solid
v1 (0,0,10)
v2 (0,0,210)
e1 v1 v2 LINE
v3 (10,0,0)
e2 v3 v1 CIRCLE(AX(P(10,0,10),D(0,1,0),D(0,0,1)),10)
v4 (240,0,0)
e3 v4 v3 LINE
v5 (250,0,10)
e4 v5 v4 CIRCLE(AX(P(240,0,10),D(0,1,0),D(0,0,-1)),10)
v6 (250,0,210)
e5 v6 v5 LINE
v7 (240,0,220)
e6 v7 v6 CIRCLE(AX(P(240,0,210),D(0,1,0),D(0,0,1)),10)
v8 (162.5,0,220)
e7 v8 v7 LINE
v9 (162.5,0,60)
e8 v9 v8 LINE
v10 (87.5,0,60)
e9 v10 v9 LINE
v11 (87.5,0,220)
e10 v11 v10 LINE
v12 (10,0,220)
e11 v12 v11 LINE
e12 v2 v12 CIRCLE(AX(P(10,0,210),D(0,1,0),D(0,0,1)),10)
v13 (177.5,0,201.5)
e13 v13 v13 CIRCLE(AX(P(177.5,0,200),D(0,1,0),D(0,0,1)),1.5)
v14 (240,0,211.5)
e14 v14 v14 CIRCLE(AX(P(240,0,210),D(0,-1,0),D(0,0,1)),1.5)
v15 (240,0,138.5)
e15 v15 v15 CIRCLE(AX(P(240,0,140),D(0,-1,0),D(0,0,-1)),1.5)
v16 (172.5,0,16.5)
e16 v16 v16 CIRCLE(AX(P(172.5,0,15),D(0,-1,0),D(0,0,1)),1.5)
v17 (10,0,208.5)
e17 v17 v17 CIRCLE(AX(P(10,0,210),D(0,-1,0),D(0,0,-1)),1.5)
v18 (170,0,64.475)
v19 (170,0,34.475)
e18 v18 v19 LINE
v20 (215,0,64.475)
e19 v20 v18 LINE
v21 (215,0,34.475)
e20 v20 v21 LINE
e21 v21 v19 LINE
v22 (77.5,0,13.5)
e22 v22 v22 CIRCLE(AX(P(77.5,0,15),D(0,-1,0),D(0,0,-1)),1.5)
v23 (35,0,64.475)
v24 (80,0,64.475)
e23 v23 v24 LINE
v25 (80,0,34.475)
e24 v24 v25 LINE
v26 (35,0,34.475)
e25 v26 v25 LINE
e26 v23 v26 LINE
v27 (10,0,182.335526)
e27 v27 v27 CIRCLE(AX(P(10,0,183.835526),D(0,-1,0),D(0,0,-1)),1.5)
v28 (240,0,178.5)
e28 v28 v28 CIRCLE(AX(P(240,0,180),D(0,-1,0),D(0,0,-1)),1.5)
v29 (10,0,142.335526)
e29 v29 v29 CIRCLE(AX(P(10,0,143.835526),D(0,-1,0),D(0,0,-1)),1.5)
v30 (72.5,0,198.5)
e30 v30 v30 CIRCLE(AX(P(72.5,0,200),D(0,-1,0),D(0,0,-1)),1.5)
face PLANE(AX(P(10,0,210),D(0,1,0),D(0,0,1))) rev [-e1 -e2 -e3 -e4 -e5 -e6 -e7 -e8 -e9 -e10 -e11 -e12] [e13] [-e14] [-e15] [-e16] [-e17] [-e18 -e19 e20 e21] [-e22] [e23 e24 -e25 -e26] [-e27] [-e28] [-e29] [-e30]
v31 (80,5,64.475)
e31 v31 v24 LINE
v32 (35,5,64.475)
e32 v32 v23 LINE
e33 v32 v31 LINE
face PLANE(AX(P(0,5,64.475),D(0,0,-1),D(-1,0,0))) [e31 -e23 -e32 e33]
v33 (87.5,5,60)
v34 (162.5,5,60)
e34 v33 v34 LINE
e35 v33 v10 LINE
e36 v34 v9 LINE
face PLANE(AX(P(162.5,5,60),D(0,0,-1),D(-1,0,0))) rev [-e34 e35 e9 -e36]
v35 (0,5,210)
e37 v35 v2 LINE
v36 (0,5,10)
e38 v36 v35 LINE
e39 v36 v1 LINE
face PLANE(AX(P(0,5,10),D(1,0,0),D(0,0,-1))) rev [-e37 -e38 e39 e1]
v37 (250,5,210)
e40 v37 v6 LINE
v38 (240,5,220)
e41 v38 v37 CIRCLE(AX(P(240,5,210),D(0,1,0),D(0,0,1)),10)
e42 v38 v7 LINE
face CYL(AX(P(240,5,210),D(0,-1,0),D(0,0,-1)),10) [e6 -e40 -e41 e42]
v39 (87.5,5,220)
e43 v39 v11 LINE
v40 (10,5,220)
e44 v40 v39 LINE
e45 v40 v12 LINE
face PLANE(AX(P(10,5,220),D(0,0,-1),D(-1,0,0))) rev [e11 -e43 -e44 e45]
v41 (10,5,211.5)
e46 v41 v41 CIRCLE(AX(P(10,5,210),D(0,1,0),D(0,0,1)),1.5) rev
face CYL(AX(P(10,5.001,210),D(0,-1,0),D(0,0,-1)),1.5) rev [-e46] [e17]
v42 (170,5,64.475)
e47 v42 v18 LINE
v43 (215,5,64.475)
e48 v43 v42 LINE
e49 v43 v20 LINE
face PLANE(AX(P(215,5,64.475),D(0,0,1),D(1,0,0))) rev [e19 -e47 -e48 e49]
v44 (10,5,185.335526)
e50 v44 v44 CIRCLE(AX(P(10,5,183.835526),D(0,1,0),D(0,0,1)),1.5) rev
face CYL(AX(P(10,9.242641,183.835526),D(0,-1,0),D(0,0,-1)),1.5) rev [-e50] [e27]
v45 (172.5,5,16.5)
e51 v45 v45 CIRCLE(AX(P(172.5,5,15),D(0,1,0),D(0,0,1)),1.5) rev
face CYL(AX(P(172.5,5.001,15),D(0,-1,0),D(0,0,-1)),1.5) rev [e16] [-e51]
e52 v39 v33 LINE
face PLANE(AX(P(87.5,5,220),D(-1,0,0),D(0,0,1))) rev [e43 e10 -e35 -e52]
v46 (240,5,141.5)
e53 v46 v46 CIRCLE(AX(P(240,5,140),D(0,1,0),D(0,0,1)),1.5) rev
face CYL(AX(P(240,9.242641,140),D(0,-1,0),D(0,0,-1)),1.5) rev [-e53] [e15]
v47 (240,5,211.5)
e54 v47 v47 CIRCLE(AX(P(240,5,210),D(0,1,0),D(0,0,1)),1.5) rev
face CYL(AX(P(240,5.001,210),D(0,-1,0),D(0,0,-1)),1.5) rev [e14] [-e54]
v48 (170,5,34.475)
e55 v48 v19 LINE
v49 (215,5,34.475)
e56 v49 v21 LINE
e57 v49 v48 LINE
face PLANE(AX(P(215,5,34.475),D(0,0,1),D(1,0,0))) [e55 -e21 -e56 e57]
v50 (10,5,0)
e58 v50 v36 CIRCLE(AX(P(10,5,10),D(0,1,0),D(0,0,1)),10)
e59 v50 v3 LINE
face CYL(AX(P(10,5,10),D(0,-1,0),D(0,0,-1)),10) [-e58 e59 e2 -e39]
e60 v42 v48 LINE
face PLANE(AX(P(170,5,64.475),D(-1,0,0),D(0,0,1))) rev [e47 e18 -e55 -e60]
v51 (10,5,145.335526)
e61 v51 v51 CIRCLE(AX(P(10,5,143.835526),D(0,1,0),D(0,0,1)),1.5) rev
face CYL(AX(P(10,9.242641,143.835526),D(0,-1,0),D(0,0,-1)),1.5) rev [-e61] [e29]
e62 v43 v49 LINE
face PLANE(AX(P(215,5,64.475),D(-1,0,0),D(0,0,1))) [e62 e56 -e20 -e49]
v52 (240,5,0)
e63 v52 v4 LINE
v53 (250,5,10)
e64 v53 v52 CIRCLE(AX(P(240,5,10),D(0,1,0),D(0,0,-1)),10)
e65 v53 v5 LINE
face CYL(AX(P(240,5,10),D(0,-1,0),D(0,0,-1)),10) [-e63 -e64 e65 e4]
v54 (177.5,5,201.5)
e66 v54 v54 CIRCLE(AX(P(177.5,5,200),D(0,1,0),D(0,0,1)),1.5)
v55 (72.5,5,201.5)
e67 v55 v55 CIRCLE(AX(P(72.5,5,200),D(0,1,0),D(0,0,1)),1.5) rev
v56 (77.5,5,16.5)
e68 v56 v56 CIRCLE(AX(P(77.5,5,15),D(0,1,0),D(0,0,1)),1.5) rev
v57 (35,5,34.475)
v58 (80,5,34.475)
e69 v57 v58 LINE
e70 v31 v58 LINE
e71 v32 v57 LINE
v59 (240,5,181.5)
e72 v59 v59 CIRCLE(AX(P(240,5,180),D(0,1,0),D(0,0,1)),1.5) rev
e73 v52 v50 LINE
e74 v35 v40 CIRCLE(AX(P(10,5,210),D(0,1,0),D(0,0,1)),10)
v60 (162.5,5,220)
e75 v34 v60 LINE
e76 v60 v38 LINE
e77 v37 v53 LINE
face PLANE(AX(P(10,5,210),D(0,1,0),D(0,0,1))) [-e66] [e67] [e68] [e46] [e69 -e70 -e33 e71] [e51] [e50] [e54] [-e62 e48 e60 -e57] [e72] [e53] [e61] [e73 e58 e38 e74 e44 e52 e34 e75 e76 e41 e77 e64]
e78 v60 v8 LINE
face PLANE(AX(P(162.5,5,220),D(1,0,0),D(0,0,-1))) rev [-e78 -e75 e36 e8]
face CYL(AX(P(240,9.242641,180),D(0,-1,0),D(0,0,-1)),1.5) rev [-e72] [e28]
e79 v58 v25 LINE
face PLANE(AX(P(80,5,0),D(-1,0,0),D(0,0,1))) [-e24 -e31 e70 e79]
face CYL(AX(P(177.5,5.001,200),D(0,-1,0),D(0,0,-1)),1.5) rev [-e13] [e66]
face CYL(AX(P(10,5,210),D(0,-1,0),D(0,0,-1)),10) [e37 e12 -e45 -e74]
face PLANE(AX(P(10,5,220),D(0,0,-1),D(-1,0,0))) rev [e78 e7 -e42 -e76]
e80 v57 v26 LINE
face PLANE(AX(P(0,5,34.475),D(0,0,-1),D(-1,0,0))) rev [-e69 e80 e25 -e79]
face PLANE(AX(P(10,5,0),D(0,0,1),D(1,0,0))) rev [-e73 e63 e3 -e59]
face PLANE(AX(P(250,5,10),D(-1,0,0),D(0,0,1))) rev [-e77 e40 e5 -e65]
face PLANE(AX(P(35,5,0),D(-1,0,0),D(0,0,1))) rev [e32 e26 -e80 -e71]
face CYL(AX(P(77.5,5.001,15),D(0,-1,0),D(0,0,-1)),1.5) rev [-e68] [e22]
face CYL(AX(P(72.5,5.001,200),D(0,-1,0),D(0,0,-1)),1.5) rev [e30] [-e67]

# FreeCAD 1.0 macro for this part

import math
import FreeCAD as App
import Part
import Sketcher
from FreeCAD import Vector
Q = App.Units.Quantity

doc = App.newDocument("Part")
body = doc.addObject("PartDesign::Body", "Body")

# Sketch on XZ plane
sketch1 = body.newObject("Sketcher::SketchObject", "Sketch")
sketch1.AttachmentSupport = (doc.getObject("XZ_Plane"), [""])
sketch1.MapMode = "FlatFace"
sketch1.addGeometry(Part.LineSegment(Vector(240, 0, 0), Vector(10, 0, 0)), False)
sketch1.addGeometry(Part.ArcOfCircle(Part.Circle(Vector(10, 10, 0), Vector(0, 0, 1), 10), math.radians(180), math.radians(270)), False)
sketch1.addGeometry(Part.LineSegment(Vector(0, 10, 0), Vector(0, 210, 0)), False)
sketch1.addGeometry(Part.ArcOfCircle(Part.Circle(Vector(10, 210, 0), Vector(0, 0, 1), 10), math.radians(90), math.radians(180)), False)
sketch1.addGeometry(Part.LineSegment(Vector(10, 220, 0), Vector(240, 220, 0)), False)
sketch1.addGeometry(Part.ArcOfCircle(Part.Circle(Vector(240, 210, 0), Vector(0, 0, 1), 10), math.radians(0), math.radians(90)), False)
sketch1.addGeometry(Part.LineSegment(Vector(250, 210, 0), Vector(250, 10, 0)), False)
sketch1.addGeometry(Part.ArcOfCircle(Part.Circle(Vector(240, 10, 0), Vector(0, 0, 1), 10), math.radians(-90), math.radians(0)), False)
sketch1.addConstraint(Sketcher.Constraint("Tangent", 0, 2, 1, 2))
sketch1.addConstraint(Sketcher.Constraint("Tangent", 1, 1, 2, 1))
sketch1.addConstraint(Sketcher.Constraint("Tangent", 2, 2, 3, 2))
sketch1.addConstraint(Sketcher.Constraint("Tangent", 3, 1, 4, 1))
sketch1.addConstraint(Sketcher.Constraint("Tangent", 4, 2, 5, 2))
sketch1.addConstraint(Sketcher.Constraint("Tangent", 5, 1, 6, 1))
sketch1.addConstraint(Sketcher.Constraint("Tangent", 6, 2, 7, 2))
sketch1.addConstraint(Sketcher.Constraint("Tangent", 7, 1, 0, 1))
sketch1.addConstraint(Sketcher.Constraint("Horizontal", 0))
sketch1.addConstraint(Sketcher.Constraint("Vertical", 2))
sketch1.addConstraint(Sketcher.Constraint("Horizontal", 4))
sketch1.addConstraint(Sketcher.Constraint("Vertical", 6))
sketch1.addConstraint(Sketcher.Constraint("Equal", 1, 3))
sketch1.addConstraint(Sketcher.Constraint("Equal", 3, 5))
sketch1.addConstraint(Sketcher.Constraint("Equal", 5, 7))
sketch1.addConstraint(Sketcher.Constraint("PointOnObject", 0, 2, -1))
sketch1.addConstraint(Sketcher.Constraint("PointOnObject", 1, 1, -2))
sketch1.addConstraint(Sketcher.Constraint("Radius", 1, Q("10 mm")))
sketch1.addConstraint(Sketcher.Constraint("DistanceX", 0, 2, 0, 1, Q("230 mm")))
sketch1.addConstraint(Sketcher.Constraint("DistanceY", 2, 1, 2, 2, Q("200 mm")))
pad1 = body.newObject("PartDesign::Pad", "Pad")
pad1.Profile = sketch1
pad1.Length = 5
pad1.Reversed = True

# Sketch on XZ plane
sketch2 = body.newObject("Sketcher::SketchObject", "Sketch001")
sketch2.AttachmentSupport = (doc.getObject("XZ_Plane"), [""])
sketch2.MapMode = "FlatFace"
sketch2.addGeometry(Part.LineSegment(Vector(170, 64, 0), Vector(170, 34, 0)), False)
sketch2.addGeometry(Part.LineSegment(Vector(170, 34, 0), Vector(215, 34, 0)), False)
sketch2.addGeometry(Part.LineSegment(Vector(215, 34, 0), Vector(215, 64, 0)), False)
sketch2.addGeometry(Part.LineSegment(Vector(215, 64, 0), Vector(170, 64, 0)), False)
sketch2.addGeometry(Part.LineSegment(Vector(35, 64, 0), Vector(35, 34, 0)), False)
sketch2.addGeometry(Part.LineSegment(Vector(35, 34, 0), Vector(80, 34, 0)), False)
sketch2.addGeometry(Part.LineSegment(Vector(80, 34, 0), Vector(80, 64, 0)), False)
sketch2.addGeometry(Part.LineSegment(Vector(80, 64, 0), Vector(35, 64, 0)), False)
sketch2.addConstraint(Sketcher.Constraint("Coincident", 0, 2, 1, 1))
sketch2.addConstraint(Sketcher.Constraint("Coincident", 1, 2, 2, 1))
sketch2.addConstraint(Sketcher.Constraint("Coincident", 2, 2, 3, 1))
sketch2.addConstraint(Sketcher.Constraint("Coincident", 3, 2, 0, 1))
sketch2.addConstraint(Sketcher.Constraint("Coincident", 4, 2, 5, 1))
sketch2.addConstraint(Sketcher.Constraint("Coincident", 5, 2, 6, 1))
sketch2.addConstraint(Sketcher.Constraint("Coincident", 6, 2, 7, 1))
sketch2.addConstraint(Sketcher.Constraint("Coincident", 7, 2, 4, 1))
sketch2.addConstraint(Sketcher.Constraint("Vertical", 0))
sketch2.addConstraint(Sketcher.Constraint("Horizontal", 1))
sketch2.addConstraint(Sketcher.Constraint("Vertical", 2))
sketch2.addConstraint(Sketcher.Constraint("Horizontal", 3))
sketch2.addConstraint(Sketcher.Constraint("Vertical", 4))
sketch2.addConstraint(Sketcher.Constraint("Horizontal", 5))
sketch2.addConstraint(Sketcher.Constraint("Vertical", 6))
sketch2.addConstraint(Sketcher.Constraint("Horizontal", 7))
sketch2.addConstraint(Sketcher.Constraint("Horizontal", 1, 2, 4, 2))
sketch2.addConstraint(Sketcher.Constraint("Horizontal", 3, 2, 6, 2))
sketch2.addConstraint(Sketcher.Constraint("Equal", 3, 5))
sketch2.addConstraint(Sketcher.Constraint("DistanceX", 1, 1, 1, 2, Q("45 mm")))
sketch2.addConstraint(Sketcher.Constraint("DistanceY", 0, 2, 0, 1, Q("30 mm")))
sketch2.addConstraint(Sketcher.Constraint("DistanceX", -1, 1, 0, 2, Q("170 mm")))
sketch2.addConstraint(Sketcher.Constraint("DistanceX", -1, 1, 4, 2, Q("35 mm")))
sketch2.addConstraint(Sketcher.Constraint("DistanceY", -1, 1, 0, 2, Q("34.475 mm")))
pocket1 = body.newObject("PartDesign::Pocket", "Pocket")
pocket1.Profile = sketch2
pocket1.Length = 5

# Sketch on XZ plane
sketch3 = body.newObject("Sketcher::SketchObject", "Sketch002")
sketch3.AttachmentSupport = (doc.getObject("XZ_Plane"), [""])
sketch3.MapMode = "FlatFace"
sketch3.addGeometry(Part.LineSegment(Vector(88, 220, 0), Vector(88, 60, 0)), False)
sketch3.addGeometry(Part.LineSegment(Vector(88, 60, 0), Vector(162, 60, 0)), False)
sketch3.addGeometry(Part.LineSegment(Vector(162, 60, 0), Vector(162, 220, 0)), False)
sketch3.addGeometry(Part.LineSegment(Vector(162, 220, 0), Vector(88, 220, 0)), False)
sketch3.addConstraint(Sketcher.Constraint("Coincident", 0, 2, 1, 1))
sketch3.addConstraint(Sketcher.Constraint("Coincident", 1, 2, 2, 1))
sketch3.addConstraint(Sketcher.Constraint("Coincident", 2, 2, 3, 1))
sketch3.addConstraint(Sketcher.Constraint("Coincident", 3, 2, 0, 1))
sketch3.addConstraint(Sketcher.Constraint("Vertical", 0))
sketch3.addConstraint(Sketcher.Constraint("Horizontal", 1))
sketch3.addConstraint(Sketcher.Constraint("Vertical", 2))
sketch3.addConstraint(Sketcher.Constraint("Horizontal", 3))
sketch3.addConstraint(Sketcher.Constraint("DistanceX", 1, 1, 1, 2, Q("75 mm")))
sketch3.addConstraint(Sketcher.Constraint("DistanceY", 0, 2, 0, 1, Q("160 mm")))
sketch3.addConstraint(Sketcher.Constraint("DistanceY", -1, 1, 0, 2, Q("60 mm")))
sketch3.addConstraint(Sketcher.Constraint("DistanceX", -1, 1, 0, 2, Q("87.5 mm")))
pocket2 = body.newObject("PartDesign::Pocket", "Pocket001")
pocket2.Profile = sketch3
pocket2.Length = 5

# Sketch on XZ plane
sketch4 = body.newObject("Sketcher::SketchObject", "Sketch003")
sketch4.AttachmentSupport = (doc.getObject("XZ_Plane"), [""])
sketch4.MapMode = "FlatFace"
sketch4.addGeometry(Part.Circle(Vector(72.5, 200, 0), Vector(0, 0, 1), 1.5), False)
sketch4.addConstraint(Sketcher.Constraint("Diameter", 0, Q("3 mm")))
sketch4.addConstraint(Sketcher.Constraint("DistanceY", -1, 1, 0, 3, Q("200 mm")))
sketch4.addConstraint(Sketcher.Constraint("DistanceX", -1, 1, 0, 3, Q("72.5 mm")))
pocket3 = body.newObject("PartDesign::Pocket", "Pocket002")
pocket3.Profile = sketch4
pocket3.Type = "UpToFirst"

# Sketch on XZ plane
sketch5 = body.newObject("Sketcher::SketchObject", "Sketch004")
sketch5.AttachmentSupport = (doc.getObject("XZ_Plane"), [""])
sketch5.MapMode = "FlatFace"
sketch5.addGeometry(Part.Circle(Vector(177.5, 200, 0), Vector(0, 0, 1), 1.5), False)
sketch5.addConstraint(Sketcher.Constraint("Diameter", 0, Q("3 mm")))
sketch5.addConstraint(Sketcher.Constraint("DistanceY", -1, 1, 0, 3, Q("200 mm")))
sketch5.addConstraint(Sketcher.Constraint("DistanceX", -1, 1, 0, 3, Q("177.5 mm")))
pocket4 = body.newObject("PartDesign::Pocket", "Pocket003")
pocket4.Profile = sketch5
pocket4.Type = "UpToFirst"

# Sketch on XZ plane
sketch6 = body.newObject("Sketcher::SketchObject", "Sketch005")
sketch6.AttachmentSupport = (doc.getObject("XZ_Plane"), [""])
sketch6.MapMode = "FlatFace"
sketch6.addGeometry(Part.Circle(Vector(77.5, 15, 0), Vector(0, 0, 1), 1.5), False)
sketch6.addConstraint(Sketcher.Constraint("Diameter", 0, Q("3 mm")))
sketch6.addConstraint(Sketcher.Constraint("DistanceY", -1, 1, 0, 3, Q("15 mm")))
sketch6.addConstraint(Sketcher.Constraint("DistanceX", -1, 1, 0, 3, Q("77.5 mm")))
pocket5 = body.newObject("PartDesign::Pocket", "Pocket004")
pocket5.Profile = sketch6
pocket5.Type = "UpToFirst"

# Sketch on XZ plane
sketch7 = body.newObject("Sketcher::SketchObject", "Sketch006")
sketch7.AttachmentSupport = (doc.getObject("XZ_Plane"), [""])
sketch7.MapMode = "FlatFace"
sketch7.addGeometry(Part.Circle(Vector(10, 210, 0), Vector(0, 0, 1), 1.5), False)
sketch7.addConstraint(Sketcher.Constraint("Diameter", 0, Q("3 mm")))
sketch7.addConstraint(Sketcher.Constraint("DistanceX", -1, 1, 0, 3, Q("10 mm")))
sketch7.addConstraint(Sketcher.Constraint("DistanceY", -1, 1, 0, 3, Q("210 mm")))
pocket6 = body.newObject("PartDesign::Pocket", "Pocket005")
pocket6.Profile = sketch7
pocket6.Type = "UpToFirst"

# Sketch on XZ plane
sketch8 = body.newObject("Sketcher::SketchObject", "Sketch007")
sketch8.AttachmentSupport = (doc.getObject("XZ_Plane"), [""])
sketch8.MapMode = "FlatFace"
sketch8.addGeometry(Part.Circle(Vector(240, 210, 0), Vector(0, 0, 1), 1.5), False)
sketch8.addConstraint(Sketcher.Constraint("Diameter", 0, Q("3 mm")))
sketch8.addConstraint(Sketcher.Constraint("DistanceX", -1, 1, 0, 3, Q("240 mm")))
sketch8.addConstraint(Sketcher.Constraint("DistanceY", -1, 1, 0, 3, Q("210 mm")))
pocket7 = body.newObject("PartDesign::Pocket", "Pocket006")
pocket7.Profile = sketch8
pocket7.Type = "UpToFirst"

# Sketch on XZ plane
sketch9 = body.newObject("Sketcher::SketchObject", "Sketch008")
sketch9.AttachmentSupport = (doc.getObject("XZ_Plane"), [""])
sketch9.MapMode = "FlatFace"
sketch9.addGeometry(Part.Circle(Vector(172.5, 15, 0), Vector(0, 0, 1), 1.5), False)
sketch9.addConstraint(Sketcher.Constraint("Diameter", 0, Q("3 mm")))
sketch9.addConstraint(Sketcher.Constraint("DistanceY", -1, 1, 0, 3, Q("15 mm")))
sketch9.addConstraint(Sketcher.Constraint("DistanceX", -1, 1, 0, 3, Q("172.5 mm")))
pocket8 = body.newObject("PartDesign::Pocket", "Pocket007")
pocket8.Profile = sketch9
pocket8.Type = "UpToFirst"

# Sketch on XZ plane
sketch10 = body.newObject("Sketcher::SketchObject", "Sketch009")
sketch10.AttachmentSupport = (doc.getObject("XZ_Plane"), [""])
sketch10.MapMode = "FlatFace"
sketch10.addGeometry(Part.Circle(Vector(240, 180, 0), Vector(0, 0, 1), 1.5), False)
sketch10.addGeometry(Part.Circle(Vector(240, 140, 0), Vector(0, 0, 1), 1.5), False)
sketch10.addGeometry(Part.Circle(Vector(10, 143.8, 0), Vector(0, 0, 1), 1.5), False)
sketch10.addGeometry(Part.Circle(Vector(10, 183.8, 0), Vector(0, 0, 1), 1.5), False)
sketch10.addConstraint(Sketcher.Constraint("Equal", 0, 1))
sketch10.addConstraint(Sketcher.Constraint("Equal", 1, 2))
sketch10.addConstraint(Sketcher.Constraint("Equal", 2, 3))
sketch10.addConstraint(Sketcher.Constraint("Vertical", 0, 3, 1, 3))
sketch10.addConstraint(Sketcher.Constraint("Vertical", 2, 3, 3, 3))
sketch10.addConstraint(Sketcher.Constraint("Diameter", 0, Q("3 mm")))
sketch10.addConstraint(Sketcher.Constraint("DistanceX", -1, 1, 0, 3, Q("240 mm")))
sketch10.addConstraint(Sketcher.Constraint("DistanceY", -1, 1, 0, 3, Q("180 mm")))
sketch10.addConstraint(Sketcher.Constraint("DistanceY", -1, 1, 1, 3, Q("140 mm")))
sketch10.addConstraint(Sketcher.Constraint("DistanceX", -1, 1, 2, 3, Q("10 mm")))
sketch10.addConstraint(Sketcher.Constraint("DistanceY", 2, 3, 3, 3, Q("40 mm")))
sketch10.addConstraint(Sketcher.Constraint("DistanceY", -1, 1, 2, 3, Q("143.835526 mm")))
pocket9 = body.newObject("PartDesign::Pocket", "Pocket008")
pocket9.Profile = sketch10
pocket9.Length = 5

doc.recompute()
